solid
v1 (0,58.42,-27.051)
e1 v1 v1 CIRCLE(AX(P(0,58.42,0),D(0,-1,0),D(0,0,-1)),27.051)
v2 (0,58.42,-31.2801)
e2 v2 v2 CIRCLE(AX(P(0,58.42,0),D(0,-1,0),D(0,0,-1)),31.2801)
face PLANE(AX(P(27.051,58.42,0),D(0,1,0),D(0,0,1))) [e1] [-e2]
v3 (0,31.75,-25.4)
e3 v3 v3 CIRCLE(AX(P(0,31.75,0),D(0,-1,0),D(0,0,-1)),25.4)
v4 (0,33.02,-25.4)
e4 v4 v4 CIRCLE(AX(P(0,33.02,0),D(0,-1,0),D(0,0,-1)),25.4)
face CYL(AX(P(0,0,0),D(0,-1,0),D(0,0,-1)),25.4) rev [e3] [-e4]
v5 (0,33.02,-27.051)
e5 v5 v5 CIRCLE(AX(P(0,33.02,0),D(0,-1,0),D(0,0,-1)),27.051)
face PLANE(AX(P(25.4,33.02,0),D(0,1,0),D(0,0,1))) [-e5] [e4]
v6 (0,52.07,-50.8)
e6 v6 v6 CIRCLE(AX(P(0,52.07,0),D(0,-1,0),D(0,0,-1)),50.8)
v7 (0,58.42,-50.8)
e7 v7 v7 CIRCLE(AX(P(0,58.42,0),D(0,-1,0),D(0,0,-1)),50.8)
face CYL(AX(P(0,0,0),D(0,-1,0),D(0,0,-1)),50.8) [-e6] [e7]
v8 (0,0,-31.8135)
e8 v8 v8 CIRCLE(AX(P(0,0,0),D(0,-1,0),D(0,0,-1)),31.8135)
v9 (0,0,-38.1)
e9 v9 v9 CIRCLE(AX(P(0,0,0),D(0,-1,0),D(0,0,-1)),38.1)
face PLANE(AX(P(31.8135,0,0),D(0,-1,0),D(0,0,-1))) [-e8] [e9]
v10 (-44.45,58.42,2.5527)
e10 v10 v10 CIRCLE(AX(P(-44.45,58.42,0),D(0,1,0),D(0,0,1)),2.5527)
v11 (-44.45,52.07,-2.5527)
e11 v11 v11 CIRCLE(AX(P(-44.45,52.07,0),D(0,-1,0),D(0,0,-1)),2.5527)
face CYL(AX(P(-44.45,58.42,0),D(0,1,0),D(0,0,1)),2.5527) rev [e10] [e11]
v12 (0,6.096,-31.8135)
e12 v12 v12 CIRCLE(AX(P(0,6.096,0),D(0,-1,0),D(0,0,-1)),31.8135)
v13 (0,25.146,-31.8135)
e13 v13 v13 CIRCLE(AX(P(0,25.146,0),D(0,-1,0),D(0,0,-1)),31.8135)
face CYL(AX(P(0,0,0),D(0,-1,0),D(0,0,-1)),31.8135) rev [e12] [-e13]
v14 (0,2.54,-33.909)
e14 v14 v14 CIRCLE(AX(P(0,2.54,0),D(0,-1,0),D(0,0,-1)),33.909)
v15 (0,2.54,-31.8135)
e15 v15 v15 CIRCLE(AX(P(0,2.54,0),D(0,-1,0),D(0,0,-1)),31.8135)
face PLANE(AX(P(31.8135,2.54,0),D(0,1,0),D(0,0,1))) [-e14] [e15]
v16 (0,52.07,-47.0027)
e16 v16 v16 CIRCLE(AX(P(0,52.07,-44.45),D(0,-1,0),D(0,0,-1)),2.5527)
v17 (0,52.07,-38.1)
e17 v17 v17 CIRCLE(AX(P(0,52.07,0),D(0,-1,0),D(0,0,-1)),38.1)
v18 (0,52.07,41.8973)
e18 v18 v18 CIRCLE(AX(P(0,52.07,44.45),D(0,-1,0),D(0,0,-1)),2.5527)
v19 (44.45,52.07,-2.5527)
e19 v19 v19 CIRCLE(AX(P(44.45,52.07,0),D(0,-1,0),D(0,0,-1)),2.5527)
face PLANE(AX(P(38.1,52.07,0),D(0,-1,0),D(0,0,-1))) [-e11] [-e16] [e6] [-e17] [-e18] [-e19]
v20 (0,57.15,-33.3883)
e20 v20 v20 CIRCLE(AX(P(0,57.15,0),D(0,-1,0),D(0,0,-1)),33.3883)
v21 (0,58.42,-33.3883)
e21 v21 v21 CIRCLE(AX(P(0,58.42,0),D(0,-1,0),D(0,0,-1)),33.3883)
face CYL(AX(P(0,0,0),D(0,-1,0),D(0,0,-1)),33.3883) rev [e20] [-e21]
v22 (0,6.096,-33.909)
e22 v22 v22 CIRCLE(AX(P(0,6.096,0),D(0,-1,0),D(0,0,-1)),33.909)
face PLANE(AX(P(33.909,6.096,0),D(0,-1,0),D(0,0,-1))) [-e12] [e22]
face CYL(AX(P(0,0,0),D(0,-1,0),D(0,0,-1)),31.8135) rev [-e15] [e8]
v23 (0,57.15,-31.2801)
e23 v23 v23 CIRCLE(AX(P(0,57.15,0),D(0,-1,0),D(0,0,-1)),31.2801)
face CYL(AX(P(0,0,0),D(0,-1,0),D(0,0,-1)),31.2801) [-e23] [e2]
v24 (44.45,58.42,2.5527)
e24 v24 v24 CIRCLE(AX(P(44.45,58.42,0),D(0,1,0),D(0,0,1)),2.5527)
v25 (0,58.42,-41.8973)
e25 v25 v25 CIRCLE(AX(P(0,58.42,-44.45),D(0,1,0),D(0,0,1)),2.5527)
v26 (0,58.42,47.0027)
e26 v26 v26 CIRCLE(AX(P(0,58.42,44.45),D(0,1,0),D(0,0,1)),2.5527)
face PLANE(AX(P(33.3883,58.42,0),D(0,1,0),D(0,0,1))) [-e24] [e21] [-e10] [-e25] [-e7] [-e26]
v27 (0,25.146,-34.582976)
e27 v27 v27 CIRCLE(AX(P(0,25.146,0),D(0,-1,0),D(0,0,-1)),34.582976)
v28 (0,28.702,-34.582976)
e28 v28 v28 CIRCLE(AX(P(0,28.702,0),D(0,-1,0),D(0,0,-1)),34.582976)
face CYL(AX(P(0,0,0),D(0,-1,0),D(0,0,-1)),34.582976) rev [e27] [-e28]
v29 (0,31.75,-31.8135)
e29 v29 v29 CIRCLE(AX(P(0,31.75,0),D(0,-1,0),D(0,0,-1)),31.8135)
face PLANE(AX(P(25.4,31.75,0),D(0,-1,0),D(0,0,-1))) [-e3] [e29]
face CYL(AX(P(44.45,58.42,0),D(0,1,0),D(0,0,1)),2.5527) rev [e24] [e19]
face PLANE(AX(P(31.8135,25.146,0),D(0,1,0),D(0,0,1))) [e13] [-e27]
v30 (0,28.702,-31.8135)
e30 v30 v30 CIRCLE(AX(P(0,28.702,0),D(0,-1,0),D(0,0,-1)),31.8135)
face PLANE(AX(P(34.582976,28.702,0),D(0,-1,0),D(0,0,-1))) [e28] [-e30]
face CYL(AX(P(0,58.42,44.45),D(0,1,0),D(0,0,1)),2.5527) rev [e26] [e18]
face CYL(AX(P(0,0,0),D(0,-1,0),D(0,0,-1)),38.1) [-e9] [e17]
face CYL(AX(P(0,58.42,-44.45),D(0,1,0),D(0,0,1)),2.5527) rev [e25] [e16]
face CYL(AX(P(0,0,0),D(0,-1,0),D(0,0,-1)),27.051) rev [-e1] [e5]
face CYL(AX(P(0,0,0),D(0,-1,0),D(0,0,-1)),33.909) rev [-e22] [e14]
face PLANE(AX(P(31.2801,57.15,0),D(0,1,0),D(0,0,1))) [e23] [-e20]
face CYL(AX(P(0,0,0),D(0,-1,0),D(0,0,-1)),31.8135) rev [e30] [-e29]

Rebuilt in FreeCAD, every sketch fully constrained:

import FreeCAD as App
import Part
import Sketcher
from FreeCAD import Vector
Q = App.Units.Quantity

doc = App.newDocument("Part")
body = doc.addObject("PartDesign::Body", "Body")

# Sketch on XY plane
sketch1 = body.newObject("Sketcher::SketchObject", "Sketch")
sketch1.AttachmentSupport = (doc.getObject("XY_Plane"), [""])
sketch1.MapMode = "FlatFace"
sketch1.addGeometry(Part.LineSegment(Vector(31.8135, 0, 0), Vector(38.1, 0, 0)), False)
sketch1.addGeometry(Part.LineSegment(Vector(38.1, 0, 0), Vector(38.1, 52.07, 0)), False)
sketch1.addGeometry(Part.LineSegment(Vector(38.1, 52.07, 0), Vector(50.8, 52.07, 0)), False)
sketch1.addGeometry(Part.LineSegment(Vector(50.8, 52.07, 0), Vector(50.8, 58.42, 0)), False)
sketch1.addGeometry(Part.LineSegment(Vector(50.8, 58.42, 0), Vector(33.3883, 58.42, 0)), False)
sketch1.addGeometry(Part.LineSegment(Vector(33.3883, 58.42, 0), Vector(33.3883, 57.15, 0)), False)
sketch1.addGeometry(Part.LineSegment(Vector(33.3883, 57.15, 0), Vector(31.2801, 57.15, 0)), False)
sketch1.addGeometry(Part.LineSegment(Vector(31.2801, 57.15, 0), Vector(31.2801, 58.42, 0)), False)
sketch1.addGeometry(Part.LineSegment(Vector(31.2801, 58.42, 0), Vector(27.051, 58.42, 0)), False)
sketch1.addGeometry(Part.LineSegment(Vector(27.051, 58.42, 0), Vector(27.051, 33.02, 0)), False)
sketch1.addGeometry(Part.LineSegment(Vector(27.051, 33.02, 0), Vector(25.4, 33.02, 0)), False)
sketch1.addGeometry(Part.LineSegment(Vector(25.4, 33.02, 0), Vector(25.4, 31.75, 0)), False)
sketch1.addGeometry(Part.LineSegment(Vector(25.4, 31.75, 0), Vector(31.8135, 31.75, 0)), False)
sketch1.addGeometry(Part.LineSegment(Vector(31.8135, 31.75, 0), Vector(31.8135, 28.702, 0)), False)
sketch1.addGeometry(Part.LineSegment(Vector(31.8135, 28.702, 0), Vector(34.582976, 28.702, 0)), False)
sketch1.addGeometry(Part.LineSegment(Vector(34.582976, 28.702, 0), Vector(34.582976, 25.146, 0)), False)
sketch1.addGeometry(Part.LineSegment(Vector(34.582976, 25.146, 0), Vector(31.8135, 25.146, 0)), False)
sketch1.addGeometry(Part.LineSegment(Vector(31.8135, 25.146, 0), Vector(31.8135, 6.096, 0)), False)
sketch1.addGeometry(Part.LineSegment(Vector(31.8135, 6.096, 0), Vector(33.909, 6.096, 0)), False)
sketch1.addGeometry(Part.LineSegment(Vector(33.909, 6.096, 0), Vector(33.909, 2.54, 0)), False)
sketch1.addGeometry(Part.LineSegment(Vector(33.909, 2.54, 0), Vector(31.8135, 2.54, 0)), False)
sketch1.addGeometry(Part.LineSegment(Vector(31.8135, 2.54, 0), Vector(31.8135, 0, 0)), False)
sketch1.addConstraint(Sketcher.Constraint("Coincident", 0, 2, 1, 1))
sketch1.addConstraint(Sketcher.Constraint("Coincident", 1, 2, 2, 1))
sketch1.addConstraint(Sketcher.Constraint("Coincident", 2, 2, 3, 1))
sketch1.addConstraint(Sketcher.Constraint("Coincident", 3, 2, 4, 1))
sketch1.addConstraint(Sketcher.Constraint("Coincident", 4, 2, 5, 1))
sketch1.addConstraint(Sketcher.Constraint("Coincident", 5, 2, 6, 1))
sketch1.addConstraint(Sketcher.Constraint("Coincident", 6, 2, 7, 1))
sketch1.addConstraint(Sketcher.Constraint("Coincident", 7, 2, 8, 1))
sketch1.addConstraint(Sketcher.Constraint("Coincident", 8, 2, 9, 1))
sketch1.addConstraint(Sketcher.Constraint("Coincident", 9, 2, 10, 1))
sketch1.addConstraint(Sketcher.Constraint("Coincident", 10, 2, 11, 1))
sketch1.addConstraint(Sketcher.Constraint("Coincident", 11, 2, 12, 1))
sketch1.addConstraint(Sketcher.Constraint("Coincident", 12, 2, 13, 1))
sketch1.addConstraint(Sketcher.Constraint("Coincident", 13, 2, 14, 1))
sketch1.addConstraint(Sketcher.Constraint("Coincident", 14, 2, 15, 1))
sketch1.addConstraint(Sketcher.Constraint("Coincident", 15, 2, 16, 1))
sketch1.addConstraint(Sketcher.Constraint("Coincident", 16, 2, 17, 1))
sketch1.addConstraint(Sketcher.Constraint("Coincident", 17, 2, 18, 1))
sketch1.addConstraint(Sketcher.Constraint("Coincident", 18, 2, 19, 1))
sketch1.addConstraint(Sketcher.Constraint("Coincident", 19, 2, 20, 1))
sketch1.addConstraint(Sketcher.Constraint("Coincident", 20, 2, 21, 1))
sketch1.addConstraint(Sketcher.Constraint("Coincident", 21, 2, 0, 1))
sketch1.addConstraint(Sketcher.Constraint("Horizontal", 0))
sketch1.addConstraint(Sketcher.Constraint("Vertical", 1))
sketch1.addConstraint(Sketcher.Constraint("Horizontal", 2))
sketch1.addConstraint(Sketcher.Constraint("Vertical", 3))
sketch1.addConstraint(Sketcher.Constraint("Horizontal", 4))
sketch1.addConstraint(Sketcher.Constraint("Vertical", 5))
sketch1.addConstraint(Sketcher.Constraint("Horizontal", 6))
sketch1.addConstraint(Sketcher.Constraint("Vertical", 7))
sketch1.addConstraint(Sketcher.Constraint("Horizontal", 8))
sketch1.addConstraint(Sketcher.Constraint("Vertical", 9))
sketch1.addConstraint(Sketcher.Constraint("Horizontal", 10))
sketch1.addConstraint(Sketcher.Constraint("Vertical", 11))
sketch1.addConstraint(Sketcher.Constraint("Horizontal", 12))
sketch1.addConstraint(Sketcher.Constraint("Vertical", 13))
sketch1.addConstraint(Sketcher.Constraint("Horizontal", 14))
sketch1.addConstraint(Sketcher.Constraint("Vertical", 15))
sketch1.addConstraint(Sketcher.Constraint("Horizontal", 16))
sketch1.addConstraint(Sketcher.Constraint("Vertical", 17))
sketch1.addConstraint(Sketcher.Constraint("Horizontal", 18))
sketch1.addConstraint(Sketcher.Constraint("Vertical", 19))
sketch1.addConstraint(Sketcher.Constraint("Horizontal", 20))
sketch1.addConstraint(Sketcher.Constraint("Vertical", 21))
sketch1.addConstraint(Sketcher.Constraint("PointOnObject", 0, 2, -1))
sketch1.addConstraint(Sketcher.Constraint("Horizontal", 4, 2, 7, 2))
sketch1.addConstraint(Sketcher.Constraint("Vertical", 13, 2, 16, 2))
sketch1.addConstraint(Sketcher.Constraint("Vertical", 17, 2, 20, 2))
sketch1.addConstraint(Sketcher.Constraint("Equal", 7, 11))
sketch1.addConstraint(Sketcher.Constraint("Equal", 15, 19))
sketch1.addConstraint(Sketcher.Constraint("DistanceY", 9, 2, 9, 1, Q("1 in")))
sketch1.addConstraint(Sketcher.Constraint("DistanceX", 2, 1, 2, 2, Q("0.5 in")))
sketch1.addConstraint(Sketcher.Constraint("DistanceY", 21, 2, 21, 1, Q("0.1 in")))
sketch1.addConstraint(Sketcher.Constraint("DistanceX", -1, 1, 2, 2, Q("2 in")))
sketch1.addConstraint(Sketcher.Constraint("DistanceX", -1, 1, 10, 2, Q("1 in")))
sketch1.addConstraint(Sketcher.Constraint("DistanceY", 1, 1, 1, 2, Q("2.05 in")))
sketch1.addConstraint(Sketcher.Constraint("DistanceY", 3, 1, 3, 2, Q("0.25 in")))
sketch1.addConstraint(Sketcher.Constraint("DistanceY", 5, 2, 5, 1, Q("0.05 in")))
sketch1.addConstraint(Sketcher.Constraint("DistanceY", 13, 2, 13, 1, Q("0.12 in")))
sketch1.addConstraint(Sketcher.Constraint("DistanceY", 15, 2, 15, 1, Q("0.14 in")))
sketch1.addConstraint(Sketcher.Constraint("DistanceX", 6, 2, 6, 1, Q("0.083 in")))
sketch1.addConstraint(Sketcher.Constraint("DistanceX", 10, 2, 10, 1, Q("0.065 in")))
sketch1.addConstraint(Sketcher.Constraint("DistanceX", 0, 1, 0, 2, Q("0.2475 in")))
sketch1.addConstraint(Sketcher.Constraint("DistanceX", 4, 2, 4, 1, Q("0.6855 in")))
sketch1.addConstraint(Sketcher.Constraint("DistanceX", 18, 1, 18, 2, Q("0.0825 in")))
sketch1.addConstraint(Sketcher.Constraint("DistanceX", 14, 1, 14, 2, Q("2.769476 mm")))
revolution = body.newObject("PartDesign::Revolution", "Revolution")
revolution.Profile = sketch1
revolution.ReferenceAxis = (sketch1, ["V_Axis"])
revolution.Angle = 360

# Sketch on XZ plane
sketch2 = body.newObject("Sketcher::SketchObject", "Sketch001")
sketch2.AttachmentSupport = (doc.getObject("XZ_Plane"), [""])
sketch2.MapMode = "FlatFace"
sketch2.AttachmentOffset = App.Placement(Vector(0, 0, -2.3 * 25.4), App.Rotation())
sketch2.addGeometry(Part.Circle(Vector(0, -44.45, 0), Vector(0, 0, 1), 2.5527), False)
sketch2.addConstraint(Sketcher.Constraint("PointOnObject", 0, 3, -2))
sketch2.addConstraint(Sketcher.Constraint("Diameter", 0, Q("0.201 in")))
sketch2.addConstraint(Sketcher.Constraint("DistanceY", 0, 3, -1, 1, Q("1.75 in")))
doc.recompute()
hole = body.newObject("PartDesign::Hole", "Hole")
hole.Profile = sketch2
hole.ThreadType = "None"
hole.Diameter = Q("0.201 in")
hole.DepthType = "ThroughAll"
hole.Reversed = True
doc.recompute()

polarpattern = body.newObject("PartDesign::PolarPattern", "PolarPattern")
polarpattern.Originals = [hole]
polarpattern.Axis = (doc.getObject("Y_Axis"), [""])
polarpattern.Angle = 360
polarpattern.Occurrences = 4
body.Tip = polarpattern

doc.recompute()
